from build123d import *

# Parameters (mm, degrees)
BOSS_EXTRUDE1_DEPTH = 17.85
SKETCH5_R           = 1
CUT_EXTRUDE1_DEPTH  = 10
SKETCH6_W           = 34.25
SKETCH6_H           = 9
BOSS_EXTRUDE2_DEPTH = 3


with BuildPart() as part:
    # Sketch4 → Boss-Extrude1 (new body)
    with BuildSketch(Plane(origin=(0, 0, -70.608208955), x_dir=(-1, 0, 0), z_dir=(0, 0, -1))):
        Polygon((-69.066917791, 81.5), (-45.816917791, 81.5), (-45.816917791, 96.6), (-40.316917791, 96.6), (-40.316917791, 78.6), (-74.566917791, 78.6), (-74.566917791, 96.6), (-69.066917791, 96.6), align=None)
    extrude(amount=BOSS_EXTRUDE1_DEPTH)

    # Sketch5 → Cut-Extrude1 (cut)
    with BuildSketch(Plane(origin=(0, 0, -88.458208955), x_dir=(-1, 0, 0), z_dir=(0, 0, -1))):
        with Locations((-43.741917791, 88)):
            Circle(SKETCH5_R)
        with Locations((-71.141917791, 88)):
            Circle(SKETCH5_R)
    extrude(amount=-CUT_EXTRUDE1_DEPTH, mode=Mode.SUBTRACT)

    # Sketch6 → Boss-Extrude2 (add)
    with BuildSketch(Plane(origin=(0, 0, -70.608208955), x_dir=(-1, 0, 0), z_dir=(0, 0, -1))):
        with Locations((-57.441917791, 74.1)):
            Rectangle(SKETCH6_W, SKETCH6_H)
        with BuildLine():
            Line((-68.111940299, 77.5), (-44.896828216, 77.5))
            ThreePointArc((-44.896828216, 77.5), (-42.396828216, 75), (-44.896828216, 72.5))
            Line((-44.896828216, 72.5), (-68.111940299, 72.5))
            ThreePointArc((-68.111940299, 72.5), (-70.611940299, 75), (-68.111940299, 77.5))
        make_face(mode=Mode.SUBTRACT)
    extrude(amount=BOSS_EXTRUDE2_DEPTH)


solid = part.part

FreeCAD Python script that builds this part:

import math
import FreeCAD as App
import Part
import Sketcher
Q = App.Units.Quantity


def add_polygon(sketch, points):
    """Adds a closed chain of lines whose ends are joined by coincident constraints."""
    first, n = sketch.GeometryCount, len(points)
    for a, b in zip(points, points[1:] + points[:1]):
        sketch.addGeometry(Part.LineSegment(App.Vector(*a, 0), App.Vector(*b, 0)), False)
    for i in range(n):
        sketch.addConstraint(Sketcher.Constraint("Coincident", first + i, 2, first + (i + 1) % n, 1))

doc = App.newDocument("Part")
body = doc.addObject("PartDesign::Body", "Body")

sketch1 = doc.addObject("Sketcher::SketchObject", "Sketch")
body.addObject(sketch1)
sketch1.AttachmentSupport = (doc.XY_Plane, [""])
sketch1.MapMode = "FlatFace"
sketch1.AttachmentOffset = App.Placement(App.Vector(0, 0, -70.608209), App.Rotation())
add_polygon(sketch1, [(46, 82), (69, 82), (69, 97), (75, 97), (75, 79), (40, 79), (40, 97), (46, 97)])
sketch1.addConstraint([
    Sketcher.Constraint("Horizontal", 0),
    Sketcher.Constraint("Vertical", 1),
    Sketcher.Constraint("Horizontal", 2),
    Sketcher.Constraint("Vertical", 3),
    Sketcher.Constraint("Horizontal", 4),
    Sketcher.Constraint("Vertical", 5),
    Sketcher.Constraint("Horizontal", 6),
    Sketcher.Constraint("Vertical", 7),
    Sketcher.Constraint("Horizontal", 2, 2, 5, 2),
    Sketcher.Constraint("Equal", 2, 6),
    Sketcher.Constraint("DistanceY", 3, 2, 3, 1, Q("18 mm")),
    Sketcher.Constraint("DistanceX", 2, 1, 2, 2, Q("5.5 mm")),
    Sketcher.Constraint("DistanceY", 1, 1, 1, 2, Q("15.1 mm")),
    Sketcher.Constraint("DistanceX", 0, 1, 0, 2, Q("23.25 mm")),
    Sketcher.Constraint("DistanceY", -1, 1, 0, 2, Q("81.5 mm")),
    Sketcher.Constraint("DistanceX", -1, 1, 0, 2, Q("69.066918 mm")),
])
pad1 = doc.addObject("PartDesign::Pad", "Pad")
body.addObject(pad1)
pad1.Profile = sketch1
pad1.Length = 17.85
pad1.Reversed = True

sketch2 = doc.addObject("Sketcher::SketchObject", "Sketch001")
body.addObject(sketch2)
sketch2.AttachmentSupport = (doc.XY_Plane, [""])
sketch2.MapMode = "FlatFace"
sketch2.AttachmentOffset = App.Placement(App.Vector(0, 0, -88.458209), App.Rotation())
sketch2.addGeometry([
    Part.Circle(App.Vector(43.7, 88, 0), App.Vector(0, 0, 1), 1),
    Part.Circle(App.Vector(71.1, 88, 0), App.Vector(0, 0, 1), 1),
], False)
sketch2.addConstraint([
    Sketcher.Constraint("Equal", 0, 1),
    Sketcher.Constraint("Horizontal", 0, 3, 1, 3),
    Sketcher.Constraint("Diameter", 0, Q("2 mm")),
    Sketcher.Constraint("DistanceY", -1, 1, 0, 3, Q("88 mm")),
    Sketcher.Constraint("DistanceX", 0, 3, 1, 3, Q("27.4 mm")),
    Sketcher.Constraint("DistanceX", -1, 1, 0, 3, Q("43.741918 mm")),
])
pocket1 = doc.addObject("PartDesign::Pocket", "Pocket")
body.addObject(pocket1)
pocket1.Profile = sketch2
pocket1.Length = 10
pocket1.Reversed = True

sketch3 = doc.addObject("Sketcher::SketchObject", "Sketch002")
body.addObject(sketch3)
sketch3.AttachmentSupport = (doc.XY_Plane, [""])
sketch3.MapMode = "FlatFace"
sketch3.AttachmentOffset = App.Placement(App.Vector(0, 0, -70.608209), App.Rotation())
add_polygon(sketch3, [(74.6, 78.6), (74.6, 69.6), (40.3, 69.6), (40.3, 78.6)])
sketch3.addGeometry(Part.ArcOfCircle(Part.Circle(App.Vector(68.1, 75, 0), App.Vector(0, 0, 1), 2.5), math.radians(-90), math.radians(90)), False)
sketch3.addGeometry(Part.LineSegment(App.Vector(68.1, 77.5, 0), App.Vector(44.9, 77.5, 0)), False)
sketch3.addGeometry(Part.ArcOfCircle(Part.Circle(App.Vector(44.9, 75, 0), App.Vector(0, 0, 1), 2.5), math.radians(90), math.radians(270)), False)
sketch3.addGeometry(Part.LineSegment(App.Vector(44.9, 72.5, 0), App.Vector(68.1, 72.5, 0)), False)
sketch3.addConstraint([
    Sketcher.Constraint("Tangent", 4, 2, 5, 1),
    Sketcher.Constraint("Tangent", 5, 2, 6, 1),
    Sketcher.Constraint("Tangent", 6, 2, 7, 1),
    Sketcher.Constraint("Tangent", 7, 2, 4, 1),
    Sketcher.Constraint("Vertical", 0),
    Sketcher.Constraint("Horizontal", 1),
    Sketcher.Constraint("Vertical", 2),
    Sketcher.Constraint("Horizontal", 3),
    Sketcher.Constraint("Horizontal", 5),
    Sketcher.Constraint("Horizontal", 7),
    Sketcher.Constraint("Radius", 4, Q("2.5 mm")),
    Sketcher.Constraint("DistanceY", 0, 2, 0, 1, Q("9 mm")),
    Sketcher.Constraint("DistanceY", -1, 1, 4, 3, Q("75 mm")),
    Sketcher.Constraint("DistanceX", 1, 2, 1, 1, Q("34.25 mm")),
    Sketcher.Constraint("DistanceY", -1, 1, 0, 2, Q("69.6 mm")),
    Sketcher.Constraint("DistanceX", 5, 2, 5, 1, Q("23.215112 mm")),
    Sketcher.Constraint("DistanceX", -1, 1, 4, 3, Q("68.11194 mm")),
    Sketcher.Constraint("DistanceX", 6, 3, 0, 2, Q("29.67009 mm")),
])
pad2 = doc.addObject("PartDesign::Pad", "Pad001")
body.addObject(pad2)
pad2.Profile = sketch3
pad2.Length = 3
pad2.Reversed = True

doc.recompute()
